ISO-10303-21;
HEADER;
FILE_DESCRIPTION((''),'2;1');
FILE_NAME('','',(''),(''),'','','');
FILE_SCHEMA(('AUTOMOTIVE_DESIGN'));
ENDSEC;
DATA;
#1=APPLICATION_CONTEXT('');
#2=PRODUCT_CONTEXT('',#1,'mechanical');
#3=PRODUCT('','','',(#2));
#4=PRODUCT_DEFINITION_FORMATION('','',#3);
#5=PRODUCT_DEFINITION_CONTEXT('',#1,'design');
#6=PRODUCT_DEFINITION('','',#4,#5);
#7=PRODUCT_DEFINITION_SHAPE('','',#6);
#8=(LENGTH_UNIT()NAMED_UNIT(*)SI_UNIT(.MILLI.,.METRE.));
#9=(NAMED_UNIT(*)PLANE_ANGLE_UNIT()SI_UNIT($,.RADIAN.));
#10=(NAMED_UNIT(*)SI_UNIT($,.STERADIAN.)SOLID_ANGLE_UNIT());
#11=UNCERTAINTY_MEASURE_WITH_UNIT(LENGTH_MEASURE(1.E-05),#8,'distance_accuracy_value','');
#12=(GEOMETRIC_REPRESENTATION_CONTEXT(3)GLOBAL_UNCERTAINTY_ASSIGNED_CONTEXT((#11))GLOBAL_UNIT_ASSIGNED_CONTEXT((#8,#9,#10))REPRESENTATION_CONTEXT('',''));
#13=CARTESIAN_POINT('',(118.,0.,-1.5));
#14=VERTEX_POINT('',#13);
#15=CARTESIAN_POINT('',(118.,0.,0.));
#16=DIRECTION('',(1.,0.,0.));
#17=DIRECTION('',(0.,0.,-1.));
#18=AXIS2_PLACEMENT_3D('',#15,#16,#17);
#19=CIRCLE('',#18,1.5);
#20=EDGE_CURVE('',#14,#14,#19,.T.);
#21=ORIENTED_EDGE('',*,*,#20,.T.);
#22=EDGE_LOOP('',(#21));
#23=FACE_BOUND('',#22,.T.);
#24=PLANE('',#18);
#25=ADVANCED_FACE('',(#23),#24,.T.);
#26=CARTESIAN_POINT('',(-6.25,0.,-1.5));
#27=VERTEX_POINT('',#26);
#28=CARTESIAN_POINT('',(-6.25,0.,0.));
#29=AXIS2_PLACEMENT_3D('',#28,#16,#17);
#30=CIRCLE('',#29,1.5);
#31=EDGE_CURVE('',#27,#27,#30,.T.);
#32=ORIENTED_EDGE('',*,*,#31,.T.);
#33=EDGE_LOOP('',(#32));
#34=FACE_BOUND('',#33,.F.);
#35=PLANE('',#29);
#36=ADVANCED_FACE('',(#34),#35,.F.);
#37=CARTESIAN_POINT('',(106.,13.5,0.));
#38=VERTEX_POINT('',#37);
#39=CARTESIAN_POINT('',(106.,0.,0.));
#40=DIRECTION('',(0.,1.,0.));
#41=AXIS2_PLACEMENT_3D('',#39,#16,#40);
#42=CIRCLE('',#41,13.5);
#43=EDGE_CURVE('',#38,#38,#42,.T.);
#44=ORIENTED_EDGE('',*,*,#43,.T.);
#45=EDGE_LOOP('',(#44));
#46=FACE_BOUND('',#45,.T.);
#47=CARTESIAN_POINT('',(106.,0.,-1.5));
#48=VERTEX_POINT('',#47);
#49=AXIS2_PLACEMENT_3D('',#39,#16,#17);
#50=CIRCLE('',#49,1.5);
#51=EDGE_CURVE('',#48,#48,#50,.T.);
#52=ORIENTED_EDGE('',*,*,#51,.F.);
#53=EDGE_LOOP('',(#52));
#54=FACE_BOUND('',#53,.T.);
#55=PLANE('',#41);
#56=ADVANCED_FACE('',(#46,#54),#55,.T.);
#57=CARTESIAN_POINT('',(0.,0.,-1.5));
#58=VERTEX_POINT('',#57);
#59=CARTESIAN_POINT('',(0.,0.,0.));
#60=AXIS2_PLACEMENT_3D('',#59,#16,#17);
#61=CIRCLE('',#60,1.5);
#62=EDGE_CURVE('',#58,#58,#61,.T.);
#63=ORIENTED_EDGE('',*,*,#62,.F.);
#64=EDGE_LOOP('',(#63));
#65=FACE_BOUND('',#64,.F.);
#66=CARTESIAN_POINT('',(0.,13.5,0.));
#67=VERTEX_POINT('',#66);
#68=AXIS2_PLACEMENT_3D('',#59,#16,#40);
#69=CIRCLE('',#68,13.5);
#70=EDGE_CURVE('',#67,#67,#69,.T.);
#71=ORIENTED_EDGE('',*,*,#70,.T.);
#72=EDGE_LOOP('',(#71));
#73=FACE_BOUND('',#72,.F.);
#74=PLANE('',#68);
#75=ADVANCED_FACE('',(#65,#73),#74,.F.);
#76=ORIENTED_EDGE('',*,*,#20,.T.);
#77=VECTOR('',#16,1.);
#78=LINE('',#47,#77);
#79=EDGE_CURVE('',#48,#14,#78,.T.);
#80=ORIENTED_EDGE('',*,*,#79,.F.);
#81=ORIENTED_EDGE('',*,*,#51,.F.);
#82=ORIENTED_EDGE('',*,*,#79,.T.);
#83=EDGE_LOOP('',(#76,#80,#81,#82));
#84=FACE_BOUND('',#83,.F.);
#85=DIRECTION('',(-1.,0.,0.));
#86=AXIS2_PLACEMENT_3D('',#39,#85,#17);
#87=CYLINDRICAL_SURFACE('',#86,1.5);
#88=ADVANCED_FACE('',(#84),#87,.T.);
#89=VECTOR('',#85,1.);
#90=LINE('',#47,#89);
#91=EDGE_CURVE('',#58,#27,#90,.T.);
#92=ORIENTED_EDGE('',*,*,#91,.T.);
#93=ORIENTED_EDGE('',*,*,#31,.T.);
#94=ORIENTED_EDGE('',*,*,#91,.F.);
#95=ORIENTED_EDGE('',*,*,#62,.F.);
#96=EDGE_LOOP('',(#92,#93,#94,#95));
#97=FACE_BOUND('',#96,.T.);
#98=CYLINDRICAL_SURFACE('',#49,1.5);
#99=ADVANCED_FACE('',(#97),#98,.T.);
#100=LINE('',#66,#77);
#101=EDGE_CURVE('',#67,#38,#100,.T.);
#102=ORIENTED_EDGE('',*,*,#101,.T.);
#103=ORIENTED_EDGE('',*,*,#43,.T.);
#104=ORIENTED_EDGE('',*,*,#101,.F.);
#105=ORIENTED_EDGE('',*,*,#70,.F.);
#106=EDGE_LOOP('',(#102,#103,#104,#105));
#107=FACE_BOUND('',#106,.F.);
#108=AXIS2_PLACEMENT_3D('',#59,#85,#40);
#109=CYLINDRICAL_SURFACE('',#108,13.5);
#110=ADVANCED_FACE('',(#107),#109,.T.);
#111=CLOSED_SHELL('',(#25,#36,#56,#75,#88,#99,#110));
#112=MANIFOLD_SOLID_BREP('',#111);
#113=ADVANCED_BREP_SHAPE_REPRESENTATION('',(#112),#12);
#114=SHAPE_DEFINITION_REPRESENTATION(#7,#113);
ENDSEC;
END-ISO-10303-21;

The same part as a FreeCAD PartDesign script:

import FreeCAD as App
import Part
import Sketcher
Q = App.Units.Quantity

doc = App.newDocument("Part")
body = doc.addObject("PartDesign::Body", "Body")

sketch1 = body.newObject("Sketcher::SketchObject", "Sketch")
sketch1.AttachmentSupport = (doc.getObject("YZ_Plane"), [""])
sketch1.MapMode = "FlatFace"
sketch1.addGeometry(Part.Circle(App.Vector(0, 0, 0), App.Vector(0, 0, 1), 14), False)
sketch1.addConstraint([
    Sketcher.Constraint("Coincident", 0, 3, -1, 1),
    Sketcher.Constraint("Diameter", 0, Q("27 mm")),
])
pad1 = body.newObject("PartDesign::Pad", "Pad")
pad1.Profile = sketch1
pad1.Length = 106

sketch2 = body.newObject("Sketcher::SketchObject", "Sketch001")
sketch2.AttachmentSupport = (doc.getObject("YZ_Plane"), [""])
sketch2.MapMode = "FlatFace"
sketch2.AttachmentOffset = App.Placement(App.Vector(0, 0, 106), App.Rotation())
sketch2.addGeometry(Part.Circle(App.Vector(0, 0, 0), App.Vector(0, 0, 1), 1.5), False)
sketch2.addConstraint([
    Sketcher.Constraint("Coincident", 0, 3, -1, 1),
    Sketcher.Constraint("Diameter", 0, Q("3 mm")),
])
pad2 = body.newObject("PartDesign::Pad", "Pad001")
pad2.Profile = sketch2
pad2.Type = "TwoLengths"
pad2.Length = 12
pad2.Length2 = 112.25

doc.recompute()
